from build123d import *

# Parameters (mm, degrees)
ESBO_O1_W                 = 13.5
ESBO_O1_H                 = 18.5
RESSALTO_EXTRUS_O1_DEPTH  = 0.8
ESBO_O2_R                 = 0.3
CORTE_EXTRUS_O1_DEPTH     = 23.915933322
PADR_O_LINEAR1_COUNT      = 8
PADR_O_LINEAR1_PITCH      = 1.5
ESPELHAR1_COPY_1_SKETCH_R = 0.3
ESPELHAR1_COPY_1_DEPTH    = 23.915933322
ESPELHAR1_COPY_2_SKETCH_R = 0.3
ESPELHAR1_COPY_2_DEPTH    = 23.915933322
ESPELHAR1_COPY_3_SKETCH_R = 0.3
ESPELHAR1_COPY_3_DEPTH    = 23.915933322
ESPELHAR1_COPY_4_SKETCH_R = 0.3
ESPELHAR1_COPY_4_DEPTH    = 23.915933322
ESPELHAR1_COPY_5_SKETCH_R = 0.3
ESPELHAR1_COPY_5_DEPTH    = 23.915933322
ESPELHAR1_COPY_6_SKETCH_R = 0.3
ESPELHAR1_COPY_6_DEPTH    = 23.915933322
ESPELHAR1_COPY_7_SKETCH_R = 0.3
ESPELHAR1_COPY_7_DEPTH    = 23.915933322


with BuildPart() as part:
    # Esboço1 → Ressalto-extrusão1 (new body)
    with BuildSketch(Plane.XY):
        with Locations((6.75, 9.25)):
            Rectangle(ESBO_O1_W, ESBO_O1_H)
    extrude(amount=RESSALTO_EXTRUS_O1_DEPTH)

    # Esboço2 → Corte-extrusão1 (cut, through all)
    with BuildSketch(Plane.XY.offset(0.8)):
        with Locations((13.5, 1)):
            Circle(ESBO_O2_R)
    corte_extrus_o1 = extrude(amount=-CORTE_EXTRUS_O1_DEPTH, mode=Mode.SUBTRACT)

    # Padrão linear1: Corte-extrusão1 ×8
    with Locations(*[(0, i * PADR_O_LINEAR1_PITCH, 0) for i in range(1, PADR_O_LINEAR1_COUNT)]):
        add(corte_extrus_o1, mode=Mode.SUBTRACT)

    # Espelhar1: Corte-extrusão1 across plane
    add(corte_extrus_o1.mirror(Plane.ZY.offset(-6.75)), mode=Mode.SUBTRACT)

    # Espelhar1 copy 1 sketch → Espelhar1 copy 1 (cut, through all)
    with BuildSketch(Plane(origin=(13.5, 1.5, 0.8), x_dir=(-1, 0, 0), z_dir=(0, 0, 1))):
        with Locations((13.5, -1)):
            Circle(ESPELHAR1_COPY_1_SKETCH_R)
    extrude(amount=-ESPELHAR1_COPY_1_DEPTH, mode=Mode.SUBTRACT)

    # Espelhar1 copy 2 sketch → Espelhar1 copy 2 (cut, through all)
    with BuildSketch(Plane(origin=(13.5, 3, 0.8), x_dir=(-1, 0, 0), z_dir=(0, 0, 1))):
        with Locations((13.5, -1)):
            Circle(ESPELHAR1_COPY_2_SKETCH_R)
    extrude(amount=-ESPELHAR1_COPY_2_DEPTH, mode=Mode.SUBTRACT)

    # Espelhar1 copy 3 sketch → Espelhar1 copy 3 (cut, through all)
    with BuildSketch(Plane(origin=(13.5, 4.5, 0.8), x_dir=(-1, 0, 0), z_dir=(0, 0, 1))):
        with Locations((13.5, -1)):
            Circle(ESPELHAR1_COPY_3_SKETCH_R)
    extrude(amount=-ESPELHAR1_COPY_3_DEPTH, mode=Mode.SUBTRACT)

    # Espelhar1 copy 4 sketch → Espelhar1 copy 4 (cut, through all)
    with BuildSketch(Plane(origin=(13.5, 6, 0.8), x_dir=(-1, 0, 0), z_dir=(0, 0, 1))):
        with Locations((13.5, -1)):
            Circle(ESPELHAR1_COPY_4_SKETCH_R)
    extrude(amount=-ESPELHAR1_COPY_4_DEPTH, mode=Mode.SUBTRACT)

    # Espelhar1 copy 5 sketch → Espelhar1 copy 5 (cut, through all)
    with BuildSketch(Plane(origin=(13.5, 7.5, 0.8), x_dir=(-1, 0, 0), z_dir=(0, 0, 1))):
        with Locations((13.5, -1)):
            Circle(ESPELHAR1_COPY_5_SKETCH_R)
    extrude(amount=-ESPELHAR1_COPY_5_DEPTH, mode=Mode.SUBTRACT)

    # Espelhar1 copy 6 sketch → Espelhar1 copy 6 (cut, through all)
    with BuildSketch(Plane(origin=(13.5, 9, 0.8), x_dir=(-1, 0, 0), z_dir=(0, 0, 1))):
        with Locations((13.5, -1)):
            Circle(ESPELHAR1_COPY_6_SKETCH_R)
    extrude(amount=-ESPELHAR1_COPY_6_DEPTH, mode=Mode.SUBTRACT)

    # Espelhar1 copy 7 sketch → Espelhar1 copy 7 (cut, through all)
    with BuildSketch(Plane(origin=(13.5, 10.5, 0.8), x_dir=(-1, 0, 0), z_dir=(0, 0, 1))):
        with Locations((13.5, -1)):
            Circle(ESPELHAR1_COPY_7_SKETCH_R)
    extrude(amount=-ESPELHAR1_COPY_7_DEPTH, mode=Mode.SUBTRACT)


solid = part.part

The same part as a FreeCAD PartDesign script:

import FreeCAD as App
import Part
import Sketcher
Q = App.Units.Quantity


def add_polygon(sketch, points):
    """Adds a closed chain of lines whose ends are joined by coincident constraints."""
    first, n = sketch.GeometryCount, len(points)
    for a, b in zip(points, points[1:] + points[:1]):
        sketch.addGeometry(Part.LineSegment(App.Vector(*a, 0), App.Vector(*b, 0)), False)
    for i in range(n):
        sketch.addConstraint(Sketcher.Constraint("Coincident", first + i, 2, first + (i + 1) % n, 1))

doc = App.newDocument("Part")
body = doc.addObject("PartDesign::Body", "Body")

# Sketch on XY plane
sketch1 = doc.addObject("Sketcher::SketchObject", "Sketch")
body.addObject(sketch1)
sketch1.AttachmentSupport = (doc.XY_Plane, [""])
sketch1.MapMode = "FlatFace"
add_polygon(sketch1, [(0, 18), (0, 0), (14, 0), (14, 18)])  # lines 0-3
sketch1.addConstraint([
    Sketcher.Constraint("Vertical", 0),
    Sketcher.Constraint("Horizontal", 1),
    Sketcher.Constraint("Vertical", 2),
    Sketcher.Constraint("Horizontal", 3),
    Sketcher.Constraint("Coincident", 0, 2, -1, 1),
    Sketcher.Constraint("DistanceX", 1, 1, 1, 2, Q("13.5 mm")),
    Sketcher.Constraint("DistanceY", 0, 2, 0, 1, Q("18.5 mm")),
])
pad1 = doc.addObject("PartDesign::Pad", "Pad")
body.addObject(pad1)
pad1.Profile = sketch1
pad1.Length = 0.8

# Sketch on XY plane
sketch2 = doc.addObject("Sketcher::SketchObject", "Sketch001")
body.addObject(sketch2)
sketch2.AttachmentSupport = (doc.XY_Plane, [""])
sketch2.MapMode = "FlatFace"
sketch2.AttachmentOffset = App.Placement(App.Vector(0, 0, 0.8), App.Rotation())
sketch2.addGeometry(Part.Circle(App.Vector(13.5, 1, 0), App.Vector(0, 0, 1), 0.3), False)
sketch2.addConstraint([
    Sketcher.Constraint("Diameter", 0, Q("0.6 mm")),
    Sketcher.Constraint("DistanceY", -1, 1, 0, 3, Q("1 mm")),
    Sketcher.Constraint("DistanceX", -1, 1, 0, 3, Q("13.5 mm")),
])
pocket1 = doc.addObject("PartDesign::Pocket", "Pocket")
body.addObject(pocket1)
pocket1.Profile = sketch2
pocket1.Type = "ThroughAll"
doc.recompute()

linearpattern = doc.addObject("PartDesign::LinearPattern", "LinearPattern")
body.addObject(linearpattern)
linearpattern.Originals = [pocket1]
linearpattern.Direction = (doc.Y_Axis, [""])
linearpattern.Mode = "offset"
linearpattern.Offset = 1.5
linearpattern.Occurrences = 8
body.Tip = linearpattern
doc.recompute()

datumplane = doc.addObject("PartDesign::Plane", "DatumPlane")
body.addObject(datumplane)
datumplane.AttachmentSupport = (doc.YZ_Plane, [""])
datumplane.MapMode = "FlatFace"
datumplane.AttachmentOffset = App.Placement(App.Vector(0, 0, 6.75), App.Rotation())
mirrored = doc.addObject("PartDesign::Mirrored", "Mirrored")
body.addObject(mirrored)
mirrored.Originals = [pocket1]
mirrored.MirrorPlane = (datumplane, [""])
body.Tip = mirrored

# Sketch on XY plane
sketch3 = doc.addObject("Sketcher::SketchObject", "Sketch002")
body.addObject(sketch3)
sketch3.AttachmentSupport = (doc.XY_Plane, [""])
sketch3.MapMode = "FlatFace"
sketch3.AttachmentOffset = App.Placement(App.Vector(0, 0, 0.8), App.Rotation())
sketch3.addGeometry(Part.Circle(App.Vector(0, 2.5, 0), App.Vector(0, 0, 1), 0.3), False)
sketch3.addConstraint([
    Sketcher.Constraint("PointOnObject", 0, 3, -2),
    Sketcher.Constraint("Diameter", 0, Q("0.6 mm")),
    Sketcher.Constraint("DistanceY", -1, 1, 0, 3, Q("2.5 mm")),
])
pocket2 = doc.addObject("PartDesign::Pocket", "Pocket001")
body.addObject(pocket2)
pocket2.Profile = sketch3
pocket2.Type = "ThroughAll"

# Sketch on XY plane
sketch4 = doc.addObject("Sketcher::SketchObject", "Sketch003")
body.addObject(sketch4)
sketch4.AttachmentSupport = (doc.XY_Plane, [""])
sketch4.MapMode = "FlatFace"
sketch4.AttachmentOffset = App.Placement(App.Vector(0, 0, 0.8), App.Rotation())
sketch4.addGeometry(Part.Circle(App.Vector(0, 4, 0), App.Vector(0, 0, 1), 0.3), False)
sketch4.addConstraint([
    Sketcher.Constraint("PointOnObject", 0, 3, -2),
    Sketcher.Constraint("Diameter", 0, Q("0.6 mm")),
    Sketcher.Constraint("DistanceY", -1, 1, 0, 3, Q("4 mm")),
])
pocket3 = doc.addObject("PartDesign::Pocket", "Pocket002")
body.addObject(pocket3)
pocket3.Profile = sketch4
pocket3.Type = "ThroughAll"

# Sketch on XY plane
sketch5 = doc.addObject("Sketcher::SketchObject", "Sketch004")
body.addObject(sketch5)
sketch5.AttachmentSupport = (doc.XY_Plane, [""])
sketch5.MapMode = "FlatFace"
sketch5.AttachmentOffset = App.Placement(App.Vector(0, 0, 0.8), App.Rotation())
sketch5.addGeometry(Part.Circle(App.Vector(0, 5.5, 0), App.Vector(0, 0, 1), 0.3), False)
sketch5.addConstraint([
    Sketcher.Constraint("PointOnObject", 0, 3, -2),
    Sketcher.Constraint("Diameter", 0, Q("0.6 mm")),
    Sketcher.Constraint("DistanceY", -1, 1, 0, 3, Q("5.5 mm")),
])
pocket4 = doc.addObject("PartDesign::Pocket", "Pocket003")
body.addObject(pocket4)
pocket4.Profile = sketch5
pocket4.Type = "ThroughAll"

# Sketch on XY plane
sketch6 = doc.addObject("Sketcher::SketchObject", "Sketch005")
body.addObject(sketch6)
sketch6.AttachmentSupport = (doc.XY_Plane, [""])
sketch6.MapMode = "FlatFace"
sketch6.AttachmentOffset = App.Placement(App.Vector(0, 0, 0.8), App.Rotation())
sketch6.addGeometry(Part.Circle(App.Vector(0, 7, 0), App.Vector(0, 0, 1), 0.3), False)
sketch6.addConstraint([
    Sketcher.Constraint("PointOnObject", 0, 3, -2),
    Sketcher.Constraint("Diameter", 0, Q("0.6 mm")),
    Sketcher.Constraint("DistanceY", -1, 1, 0, 3, Q("7 mm")),
])
pocket5 = doc.addObject("PartDesign::Pocket", "Pocket004")
body.addObject(pocket5)
pocket5.Profile = sketch6
pocket5.Type = "ThroughAll"

# Sketch on XY plane
sketch7 = doc.addObject("Sketcher::SketchObject", "Sketch006")
body.addObject(sketch7)
sketch7.AttachmentSupport = (doc.XY_Plane, [""])
sketch7.MapMode = "FlatFace"
sketch7.AttachmentOffset = App.Placement(App.Vector(0, 0, 0.8), App.Rotation())
sketch7.addGeometry(Part.Circle(App.Vector(0, 8.5, 0), App.Vector(0, 0, 1), 0.3), False)
sketch7.addConstraint([
    Sketcher.Constraint("PointOnObject", 0, 3, -2),
    Sketcher.Constraint("Diameter", 0, Q("0.6 mm")),
    Sketcher.Constraint("DistanceY", -1, 1, 0, 3, Q("8.5 mm")),
])
pocket6 = doc.addObject("PartDesign::Pocket", "Pocket005")
body.addObject(pocket6)
pocket6.Profile = sketch7
pocket6.Type = "ThroughAll"

# Sketch on XY plane
sketch8 = doc.addObject("Sketcher::SketchObject", "Sketch007")
body.addObject(sketch8)
sketch8.AttachmentSupport = (doc.XY_Plane, [""])
sketch8.MapMode = "FlatFace"
sketch8.AttachmentOffset = App.Placement(App.Vector(0, 0, 0.8), App.Rotation())
sketch8.addGeometry(Part.Circle(App.Vector(0, 10, 0), App.Vector(0, 0, 1), 0.3), False)
sketch8.addConstraint([
    Sketcher.Constraint("PointOnObject", 0, 3, -2),
    Sketcher.Constraint("Diameter", 0, Q("0.6 mm")),
    Sketcher.Constraint("DistanceY", -1, 1, 0, 3, Q("10 mm")),
])
pocket7 = doc.addObject("PartDesign::Pocket", "Pocket006")
body.addObject(pocket7)
pocket7.Profile = sketch8
pocket7.Type = "ThroughAll"

# Sketch on XY plane
sketch9 = doc.addObject("Sketcher::SketchObject", "Sketch008")
body.addObject(sketch9)
sketch9.AttachmentSupport = (doc.XY_Plane, [""])
sketch9.MapMode = "FlatFace"
sketch9.AttachmentOffset = App.Placement(App.Vector(0, 0, 0.8), App.Rotation())
sketch9.addGeometry(Part.Circle(App.Vector(0, 11.5, 0), App.Vector(0, 0, 1), 0.3), False)
sketch9.addConstraint([
    Sketcher.Constraint("PointOnObject", 0, 3, -2),
    Sketcher.Constraint("Diameter", 0, Q("0.6 mm")),
    Sketcher.Constraint("DistanceY", -1, 1, 0, 3, Q("11.5 mm")),
])
pocket8 = doc.addObject("PartDesign::Pocket", "Pocket007")
body.addObject(pocket8)
pocket8.Profile = sketch9
pocket8.Type = "ThroughAll"

doc.recompute()
